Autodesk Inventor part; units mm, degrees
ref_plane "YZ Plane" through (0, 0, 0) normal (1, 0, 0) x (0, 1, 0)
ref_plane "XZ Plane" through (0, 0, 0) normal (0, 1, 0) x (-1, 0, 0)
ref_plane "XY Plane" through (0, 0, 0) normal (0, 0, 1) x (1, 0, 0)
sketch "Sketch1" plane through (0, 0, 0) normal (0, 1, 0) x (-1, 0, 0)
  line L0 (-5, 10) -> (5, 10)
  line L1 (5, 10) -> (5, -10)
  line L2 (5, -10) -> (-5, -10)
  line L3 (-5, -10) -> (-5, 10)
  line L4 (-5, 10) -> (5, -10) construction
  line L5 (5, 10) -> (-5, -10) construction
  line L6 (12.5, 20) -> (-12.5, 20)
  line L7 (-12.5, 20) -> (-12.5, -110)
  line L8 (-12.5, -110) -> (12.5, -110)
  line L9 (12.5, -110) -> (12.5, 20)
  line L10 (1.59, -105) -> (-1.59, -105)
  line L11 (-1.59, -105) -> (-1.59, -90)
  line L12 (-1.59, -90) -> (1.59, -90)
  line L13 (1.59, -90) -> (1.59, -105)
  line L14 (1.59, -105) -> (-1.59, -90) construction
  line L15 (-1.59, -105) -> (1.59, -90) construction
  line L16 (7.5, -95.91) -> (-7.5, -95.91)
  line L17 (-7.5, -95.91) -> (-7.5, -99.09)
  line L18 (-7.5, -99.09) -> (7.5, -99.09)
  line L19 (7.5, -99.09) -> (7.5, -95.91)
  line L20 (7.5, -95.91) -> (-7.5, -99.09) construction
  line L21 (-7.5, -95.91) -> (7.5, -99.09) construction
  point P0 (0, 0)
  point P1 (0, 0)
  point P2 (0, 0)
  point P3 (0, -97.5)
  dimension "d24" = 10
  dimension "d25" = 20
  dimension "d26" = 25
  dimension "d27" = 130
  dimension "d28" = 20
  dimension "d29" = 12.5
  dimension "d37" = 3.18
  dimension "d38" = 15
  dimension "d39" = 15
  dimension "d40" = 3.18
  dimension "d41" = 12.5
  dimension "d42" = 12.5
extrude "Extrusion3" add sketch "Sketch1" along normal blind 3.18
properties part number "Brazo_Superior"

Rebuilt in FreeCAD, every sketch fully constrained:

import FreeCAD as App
import Part
import Sketcher
from FreeCAD import Vector
Q = App.Units.Quantity


def add_polygon(sketch, points):
    """Adds a closed chain of lines whose ends are joined by coincident constraints."""
    first, n = sketch.GeometryCount, len(points)
    for a, b in zip(points, points[1:] + points[:1]):
        sketch.addGeometry(Part.LineSegment(App.Vector(*a, 0), App.Vector(*b, 0)), False)
    for i in range(n):
        sketch.addConstraint(Sketcher.Constraint("Coincident", first + i, 2, first + (i + 1) % n, 1))

doc = App.newDocument("Part")
body = doc.addObject("PartDesign::Body", "Body")

# Sketch on XZ plane
sketch1 = doc.addObject("Sketcher::SketchObject", "Sketch")
body.addObject(sketch1)
sketch1.AttachmentSupport = (doc.XZ_Plane, [""])
sketch1.MapMode = "FlatFace"
add_polygon(sketch1, [(-12.5, -110), (-12.5, 20), (12.5, 20), (12.5, -110)])  # lines 0-3
add_polygon(sketch1, [(-1.6, -99.1), (-1.6, -105), (1.6, -105), (1.6, -99.1), (7.5, -99.1), (7.5, -95.9), (1.6, -95.9), (1.6, -90), (-1.6, -90), (-1.6, -95.9), (-7.5, -95.9), (-7.5, -99.1)])  # lines 4-15
add_polygon(sketch1, [(5, -10), (5, 10), (-5, 10), (-5, -10)])  # lines 16-19
sketch1.addConstraint(Sketcher.Constraint("Vertical", 0))
sketch1.addConstraint(Sketcher.Constraint("Horizontal", 1))
sketch1.addConstraint(Sketcher.Constraint("Vertical", 2))
sketch1.addConstraint(Sketcher.Constraint("Horizontal", 3))
sketch1.addConstraint(Sketcher.Constraint("Vertical", 4))
sketch1.addConstraint(Sketcher.Constraint("Horizontal", 5))
sketch1.addConstraint(Sketcher.Constraint("Vertical", 6))
sketch1.addConstraint(Sketcher.Constraint("Horizontal", 7))
sketch1.addConstraint(Sketcher.Constraint("Vertical", 8))
sketch1.addConstraint(Sketcher.Constraint("Horizontal", 9))
sketch1.addConstraint(Sketcher.Constraint("Vertical", 10))
sketch1.addConstraint(Sketcher.Constraint("Horizontal", 11))
sketch1.addConstraint(Sketcher.Constraint("Vertical", 12))
sketch1.addConstraint(Sketcher.Constraint("Horizontal", 13))
sketch1.addConstraint(Sketcher.Constraint("Vertical", 14))
sketch1.addConstraint(Sketcher.Constraint("Horizontal", 15))
sketch1.addConstraint(Sketcher.Constraint("Vertical", 16))
sketch1.addConstraint(Sketcher.Constraint("Horizontal", 17))
sketch1.addConstraint(Sketcher.Constraint("Vertical", 18))
sketch1.addConstraint(Sketcher.Constraint("Horizontal", 19))
sketch1.addConstraint(Sketcher.Constraint("Symmetric", 16, 2, 18, 2, -1, 1))
sketch1.addConstraint(Sketcher.Constraint("Symmetric", 9, 2, 12, 2, -2))
sketch1.addConstraint(Sketcher.Constraint("Symmetric", 7, 2, 14, 2, -2))
sketch1.addConstraint(Sketcher.Constraint("Vertical", 6, 2, 9, 2))
sketch1.addConstraint(Sketcher.Constraint("Vertical", 4, 2, 11, 2))
sketch1.addConstraint(Sketcher.Constraint("Equal", 15, 4))
sketch1.addConstraint(Sketcher.Constraint("Equal", 11, 8))
sketch1.addConstraint(Sketcher.Constraint("Equal", 6, 10))
sketch1.addConstraint(Sketcher.Constraint("DistanceX", 1, 1, 1, 2, Q("25 mm")))
sketch1.addConstraint(Sketcher.Constraint("DistanceX", 17, 2, 17, 1, Q("10 mm")))
sketch1.addConstraint(Sketcher.Constraint("DistanceY", 0, 1, 0, 2, Q("130 mm")))
sketch1.addConstraint(Sketcher.Constraint("DistanceY", 16, 1, 16, 2, Q("20 mm")))
sketch1.addConstraint(Sketcher.Constraint("DistanceY", -1, 1, 0, 2, Q("20 mm")))
sketch1.addConstraint(Sketcher.Constraint("DistanceX", 3, 2, 7, 2, Q("20 mm")))
sketch1.addConstraint(Sketcher.Constraint("DistanceY", 5, 2, 10, 2, Q("15 mm")))
sketch1.addConstraint(Sketcher.Constraint("DistanceX", 5, 1, 5, 2, Q("3.18 mm")))
sketch1.addConstraint(Sketcher.Constraint("DistanceY", 4, 2, -1, 1, Q("105 mm")))
pad1 = doc.addObject("PartDesign::Pad", "Pad")
body.addObject(pad1)
pad1.Profile = sketch1
pad1.Length = 3.18
pad1.Reversed = True

doc.recompute()
